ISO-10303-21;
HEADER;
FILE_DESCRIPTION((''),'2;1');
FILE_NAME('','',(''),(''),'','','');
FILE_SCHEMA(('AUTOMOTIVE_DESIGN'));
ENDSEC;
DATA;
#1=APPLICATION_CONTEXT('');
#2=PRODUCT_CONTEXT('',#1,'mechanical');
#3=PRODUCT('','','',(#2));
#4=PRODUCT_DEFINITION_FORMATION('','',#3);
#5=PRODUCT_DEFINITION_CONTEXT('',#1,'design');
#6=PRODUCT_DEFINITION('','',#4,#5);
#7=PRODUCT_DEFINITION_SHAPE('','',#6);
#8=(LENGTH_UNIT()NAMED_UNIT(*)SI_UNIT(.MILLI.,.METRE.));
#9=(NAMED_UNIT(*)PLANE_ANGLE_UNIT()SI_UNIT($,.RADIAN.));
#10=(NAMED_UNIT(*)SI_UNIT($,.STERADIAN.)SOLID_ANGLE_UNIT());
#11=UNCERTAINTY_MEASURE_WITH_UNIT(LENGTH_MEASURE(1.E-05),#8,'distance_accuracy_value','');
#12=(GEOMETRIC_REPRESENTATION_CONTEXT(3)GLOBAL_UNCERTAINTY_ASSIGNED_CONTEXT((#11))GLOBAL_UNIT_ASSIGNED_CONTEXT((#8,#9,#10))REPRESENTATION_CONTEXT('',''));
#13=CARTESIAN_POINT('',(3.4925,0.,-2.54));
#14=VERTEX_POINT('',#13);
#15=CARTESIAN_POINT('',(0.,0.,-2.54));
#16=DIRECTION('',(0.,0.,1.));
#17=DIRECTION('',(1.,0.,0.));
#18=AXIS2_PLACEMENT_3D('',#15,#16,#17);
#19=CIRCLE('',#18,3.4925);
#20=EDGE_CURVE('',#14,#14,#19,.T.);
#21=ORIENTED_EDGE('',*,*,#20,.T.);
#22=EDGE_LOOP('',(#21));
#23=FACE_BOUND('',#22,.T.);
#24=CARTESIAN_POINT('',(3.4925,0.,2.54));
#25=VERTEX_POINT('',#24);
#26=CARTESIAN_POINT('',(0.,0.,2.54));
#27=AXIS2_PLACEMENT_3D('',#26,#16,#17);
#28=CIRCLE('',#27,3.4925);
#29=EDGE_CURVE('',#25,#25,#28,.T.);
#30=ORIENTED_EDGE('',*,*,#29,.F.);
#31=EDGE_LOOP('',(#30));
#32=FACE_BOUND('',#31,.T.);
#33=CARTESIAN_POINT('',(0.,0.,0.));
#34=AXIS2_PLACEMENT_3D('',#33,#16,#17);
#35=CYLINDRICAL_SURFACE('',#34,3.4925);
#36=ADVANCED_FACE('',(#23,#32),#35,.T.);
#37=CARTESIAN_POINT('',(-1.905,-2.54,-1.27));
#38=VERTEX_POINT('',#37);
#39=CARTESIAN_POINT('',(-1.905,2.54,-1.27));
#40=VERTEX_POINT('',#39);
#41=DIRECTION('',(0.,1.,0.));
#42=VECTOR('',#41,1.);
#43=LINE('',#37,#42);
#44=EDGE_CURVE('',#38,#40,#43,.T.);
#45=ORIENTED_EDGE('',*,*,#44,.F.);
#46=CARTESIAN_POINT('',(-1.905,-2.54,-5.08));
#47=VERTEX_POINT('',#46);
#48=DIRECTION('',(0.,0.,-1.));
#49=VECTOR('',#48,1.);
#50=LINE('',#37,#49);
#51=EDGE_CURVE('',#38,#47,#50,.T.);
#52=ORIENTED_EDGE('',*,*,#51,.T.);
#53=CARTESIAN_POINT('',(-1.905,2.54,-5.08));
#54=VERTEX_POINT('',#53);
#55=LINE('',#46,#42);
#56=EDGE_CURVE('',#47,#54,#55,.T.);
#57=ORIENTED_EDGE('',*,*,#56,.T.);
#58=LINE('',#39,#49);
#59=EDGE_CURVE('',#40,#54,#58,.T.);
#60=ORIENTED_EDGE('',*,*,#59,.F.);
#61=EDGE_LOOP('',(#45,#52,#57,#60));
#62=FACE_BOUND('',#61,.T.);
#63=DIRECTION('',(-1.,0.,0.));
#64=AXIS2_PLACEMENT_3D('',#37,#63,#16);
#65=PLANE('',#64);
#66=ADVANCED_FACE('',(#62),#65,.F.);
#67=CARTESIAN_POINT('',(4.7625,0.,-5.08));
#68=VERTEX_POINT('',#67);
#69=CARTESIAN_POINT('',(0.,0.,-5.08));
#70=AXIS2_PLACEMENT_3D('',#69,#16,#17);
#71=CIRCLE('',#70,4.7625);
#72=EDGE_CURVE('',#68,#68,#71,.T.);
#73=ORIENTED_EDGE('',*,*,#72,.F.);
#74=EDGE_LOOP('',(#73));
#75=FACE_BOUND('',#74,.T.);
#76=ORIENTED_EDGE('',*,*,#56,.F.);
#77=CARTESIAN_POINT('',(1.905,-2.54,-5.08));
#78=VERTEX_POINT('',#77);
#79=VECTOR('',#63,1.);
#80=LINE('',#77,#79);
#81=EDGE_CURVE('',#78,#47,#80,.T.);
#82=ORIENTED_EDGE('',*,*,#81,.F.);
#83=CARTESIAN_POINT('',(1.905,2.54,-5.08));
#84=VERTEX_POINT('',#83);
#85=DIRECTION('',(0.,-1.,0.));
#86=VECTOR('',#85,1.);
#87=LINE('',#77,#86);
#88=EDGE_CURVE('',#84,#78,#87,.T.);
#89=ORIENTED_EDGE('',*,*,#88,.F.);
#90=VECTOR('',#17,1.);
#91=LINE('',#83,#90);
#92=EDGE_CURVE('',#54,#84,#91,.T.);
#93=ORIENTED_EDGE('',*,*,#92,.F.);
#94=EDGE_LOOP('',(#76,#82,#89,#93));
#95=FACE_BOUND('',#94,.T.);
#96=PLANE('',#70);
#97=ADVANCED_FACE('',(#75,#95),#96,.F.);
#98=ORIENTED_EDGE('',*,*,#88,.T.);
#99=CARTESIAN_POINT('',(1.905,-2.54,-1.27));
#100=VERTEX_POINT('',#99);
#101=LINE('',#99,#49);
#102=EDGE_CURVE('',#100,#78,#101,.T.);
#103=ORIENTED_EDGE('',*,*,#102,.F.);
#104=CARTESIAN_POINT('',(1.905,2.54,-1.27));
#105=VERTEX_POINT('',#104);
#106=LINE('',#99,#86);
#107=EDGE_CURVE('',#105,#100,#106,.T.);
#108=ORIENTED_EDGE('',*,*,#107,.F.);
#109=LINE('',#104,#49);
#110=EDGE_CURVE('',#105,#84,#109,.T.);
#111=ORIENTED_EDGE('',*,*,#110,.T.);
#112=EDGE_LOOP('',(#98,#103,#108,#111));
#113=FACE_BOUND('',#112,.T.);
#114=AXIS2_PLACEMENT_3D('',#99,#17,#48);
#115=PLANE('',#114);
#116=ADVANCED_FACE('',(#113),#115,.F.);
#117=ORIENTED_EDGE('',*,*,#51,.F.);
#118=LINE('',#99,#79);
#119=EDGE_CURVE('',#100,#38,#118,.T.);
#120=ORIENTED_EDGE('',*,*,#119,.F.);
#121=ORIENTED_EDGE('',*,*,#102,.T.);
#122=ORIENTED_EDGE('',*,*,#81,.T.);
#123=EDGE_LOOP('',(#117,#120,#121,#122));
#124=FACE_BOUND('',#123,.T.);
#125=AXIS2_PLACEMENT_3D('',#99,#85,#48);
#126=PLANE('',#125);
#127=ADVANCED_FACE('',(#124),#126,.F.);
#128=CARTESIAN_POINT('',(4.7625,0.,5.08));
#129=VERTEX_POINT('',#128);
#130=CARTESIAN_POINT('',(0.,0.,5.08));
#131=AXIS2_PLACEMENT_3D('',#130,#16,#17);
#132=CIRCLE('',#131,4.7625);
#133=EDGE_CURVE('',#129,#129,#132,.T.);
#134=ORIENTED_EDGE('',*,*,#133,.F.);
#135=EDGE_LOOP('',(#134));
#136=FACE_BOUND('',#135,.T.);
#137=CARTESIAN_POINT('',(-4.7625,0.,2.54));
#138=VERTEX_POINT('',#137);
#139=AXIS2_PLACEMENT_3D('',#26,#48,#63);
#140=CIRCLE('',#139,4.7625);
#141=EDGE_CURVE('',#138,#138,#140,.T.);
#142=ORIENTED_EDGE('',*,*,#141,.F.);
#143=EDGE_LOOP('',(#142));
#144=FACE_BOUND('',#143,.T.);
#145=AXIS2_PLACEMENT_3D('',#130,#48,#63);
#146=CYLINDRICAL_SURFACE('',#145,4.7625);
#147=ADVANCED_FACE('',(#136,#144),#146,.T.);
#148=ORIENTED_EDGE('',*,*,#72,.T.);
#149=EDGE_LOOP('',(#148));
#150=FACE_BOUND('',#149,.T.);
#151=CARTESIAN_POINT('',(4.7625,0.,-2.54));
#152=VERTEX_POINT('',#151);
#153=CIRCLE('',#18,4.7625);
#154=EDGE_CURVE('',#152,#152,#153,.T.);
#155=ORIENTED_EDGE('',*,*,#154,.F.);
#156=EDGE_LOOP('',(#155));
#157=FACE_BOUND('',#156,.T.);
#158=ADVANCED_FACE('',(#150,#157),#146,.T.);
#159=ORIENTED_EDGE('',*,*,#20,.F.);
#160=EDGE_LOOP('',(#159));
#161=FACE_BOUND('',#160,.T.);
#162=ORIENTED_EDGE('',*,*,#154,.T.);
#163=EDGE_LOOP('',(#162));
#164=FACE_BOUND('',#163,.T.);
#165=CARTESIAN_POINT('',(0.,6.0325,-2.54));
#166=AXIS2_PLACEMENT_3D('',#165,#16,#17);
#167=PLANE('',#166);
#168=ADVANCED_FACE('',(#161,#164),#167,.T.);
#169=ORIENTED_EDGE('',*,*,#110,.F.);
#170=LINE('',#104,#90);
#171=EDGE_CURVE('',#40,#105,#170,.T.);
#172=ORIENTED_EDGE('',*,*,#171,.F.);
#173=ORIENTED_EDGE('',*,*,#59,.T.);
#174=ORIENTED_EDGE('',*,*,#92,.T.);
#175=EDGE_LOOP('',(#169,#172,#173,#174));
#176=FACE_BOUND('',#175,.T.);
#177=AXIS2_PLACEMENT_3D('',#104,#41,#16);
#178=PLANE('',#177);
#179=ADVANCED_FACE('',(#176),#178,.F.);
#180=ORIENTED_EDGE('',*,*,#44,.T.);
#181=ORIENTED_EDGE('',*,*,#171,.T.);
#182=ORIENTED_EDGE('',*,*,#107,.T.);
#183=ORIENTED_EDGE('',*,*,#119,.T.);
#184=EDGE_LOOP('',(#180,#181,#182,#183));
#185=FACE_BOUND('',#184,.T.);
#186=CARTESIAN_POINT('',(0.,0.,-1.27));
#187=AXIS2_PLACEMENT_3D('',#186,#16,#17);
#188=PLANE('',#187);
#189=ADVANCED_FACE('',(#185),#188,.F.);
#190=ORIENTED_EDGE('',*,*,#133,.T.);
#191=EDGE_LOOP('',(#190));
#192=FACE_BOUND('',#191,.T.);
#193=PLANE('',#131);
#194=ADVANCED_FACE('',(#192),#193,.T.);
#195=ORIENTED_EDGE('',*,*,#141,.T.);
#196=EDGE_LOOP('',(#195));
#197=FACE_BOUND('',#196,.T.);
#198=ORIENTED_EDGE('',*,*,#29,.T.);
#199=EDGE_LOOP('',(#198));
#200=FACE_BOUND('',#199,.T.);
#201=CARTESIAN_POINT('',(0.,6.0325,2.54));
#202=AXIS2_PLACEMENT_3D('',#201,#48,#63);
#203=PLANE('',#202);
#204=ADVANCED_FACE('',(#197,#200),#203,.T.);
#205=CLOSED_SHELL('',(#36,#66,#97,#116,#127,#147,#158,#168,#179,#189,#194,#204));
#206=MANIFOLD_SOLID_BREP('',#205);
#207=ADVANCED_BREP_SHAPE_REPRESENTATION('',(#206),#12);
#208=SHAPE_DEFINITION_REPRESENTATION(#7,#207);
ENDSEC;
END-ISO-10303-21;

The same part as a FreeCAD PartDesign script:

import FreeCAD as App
import Part
import Sketcher

V = App.Vector
Q = App.Units.Quantity

doc = App.newDocument("Part")
body = doc.addObject("PartDesign::Body", "Body")

# Sketch on XY plane
sketch1 = body.newObject("Sketcher::SketchObject", "Sketch")
sketch1.AttachmentSupport = (doc.getObject("XY_Plane"), [""])
sketch1.MapMode = "FlatFace"
sketch1.addGeometry(Part.Circle(V(0, 0, 0), V(0, 0, 1), 4.7625), False)
sketch1.addConstraint(Sketcher.Constraint("Coincident", 0, 3, -1, 1))
sketch1.addConstraint(Sketcher.Constraint("Diameter", 0, Q("0.375 in")))
pad1 = body.newObject("PartDesign::Pad", "Pad")
pad1.Profile = sketch1
pad1.Length = Q("0.4 in")
pad1.Midplane = True

# Sketch on XY plane
sketch2 = body.newObject("Sketcher::SketchObject", "Sketch001")
sketch2.AttachmentSupport = (doc.getObject("XY_Plane"), [""])
sketch2.MapMode = "FlatFace"
sketch2.AttachmentOffset = App.Placement(V(0, 0, -0.2 * 25.4), App.Rotation())
sketch2.addGeometry(Part.LineSegment(V(1.905, 2.54, 0), V(1.905, -2.54, 0)), False)
sketch2.addGeometry(Part.LineSegment(V(1.905, -2.54, 0), V(-1.905, -2.54, 0)), False)
sketch2.addGeometry(Part.LineSegment(V(-1.905, -2.54, 0), V(-1.905, 2.54, 0)), False)
sketch2.addGeometry(Part.LineSegment(V(-1.905, 2.54, 0), V(1.905, 2.54, 0)), False)
sketch2.addConstraint(Sketcher.Constraint("Coincident", 0, 2, 1, 1))
sketch2.addConstraint(Sketcher.Constraint("Coincident", 1, 2, 2, 1))
sketch2.addConstraint(Sketcher.Constraint("Coincident", 2, 2, 3, 1))
sketch2.addConstraint(Sketcher.Constraint("Coincident", 3, 2, 0, 1))
sketch2.addConstraint(Sketcher.Constraint("Vertical", 0))
sketch2.addConstraint(Sketcher.Constraint("Horizontal", 1))
sketch2.addConstraint(Sketcher.Constraint("Vertical", 2))
sketch2.addConstraint(Sketcher.Constraint("Horizontal", 3))
sketch2.addConstraint(Sketcher.Constraint("Symmetric", 0, 2, 2, 2, -1, 1))
sketch2.addConstraint(Sketcher.Constraint("DistanceY", 0, 2, 0, 1, Q("0.2 in")))
sketch2.addConstraint(Sketcher.Constraint("DistanceX", 1, 2, 1, 1, Q("0.15 in")))
pocket1 = body.newObject("PartDesign::Pocket", "Pocket")
pocket1.Profile = sketch2
pocket1.Length = Q("0.15 in")
pocket1.Reversed = True

# Sketch on YZ plane
sketch3 = body.newObject("Sketcher::SketchObject", "Sketch002")
sketch3.AttachmentSupport = (doc.getObject("YZ_Plane"), [""])
sketch3.MapMode = "FlatFace"
sketch3.addGeometry(Part.LineSegment(V(6.0325, 2.54, 0), V(3.4925, 2.54, 0)), False)
sketch3.addGeometry(Part.LineSegment(V(3.4925, 2.54, 0), V(3.4925, -2.54, 0)), False)
sketch3.addGeometry(Part.LineSegment(V(3.4925, -2.54, 0), V(6.0325, -2.54, 0)), False)
sketch3.addGeometry(Part.LineSegment(V(6.0325, -2.54, 0), V(6.0325, 2.54, 0)), False)
sketch3.addConstraint(Sketcher.Constraint("Coincident", 0, 2, 1, 1))
sketch3.addConstraint(Sketcher.Constraint("Coincident", 1, 2, 2, 1))
sketch3.addConstraint(Sketcher.Constraint("Coincident", 2, 2, 3, 1))
sketch3.addConstraint(Sketcher.Constraint("Coincident", 3, 2, 0, 1))
sketch3.addConstraint(Sketcher.Constraint("Horizontal", 0))
sketch3.addConstraint(Sketcher.Constraint("Vertical", 1))
sketch3.addConstraint(Sketcher.Constraint("Horizontal", 2))
sketch3.addConstraint(Sketcher.Constraint("Vertical", 3))
sketch3.addConstraint(Sketcher.Constraint("DistanceX", 0, 2, 0, 1, Q("0.1 in")))
sketch3.addConstraint(Sketcher.Constraint("DistanceY", 1, 2, 1, 1, Q("0.2 in")))
sketch3.addConstraint(Sketcher.Constraint("DistanceY", -1, 1, 0, 2, Q("0.1 in")))
sketch3.addConstraint(Sketcher.Constraint("DistanceX", -1, 1, 0, 2, Q("0.1375 in")))
groove = body.newObject("PartDesign::Groove", "Groove")
groove.Profile = sketch3
groove.ReferenceAxis = (sketch3, ["V_Axis"])
groove.Angle = 360

doc.recompute()
